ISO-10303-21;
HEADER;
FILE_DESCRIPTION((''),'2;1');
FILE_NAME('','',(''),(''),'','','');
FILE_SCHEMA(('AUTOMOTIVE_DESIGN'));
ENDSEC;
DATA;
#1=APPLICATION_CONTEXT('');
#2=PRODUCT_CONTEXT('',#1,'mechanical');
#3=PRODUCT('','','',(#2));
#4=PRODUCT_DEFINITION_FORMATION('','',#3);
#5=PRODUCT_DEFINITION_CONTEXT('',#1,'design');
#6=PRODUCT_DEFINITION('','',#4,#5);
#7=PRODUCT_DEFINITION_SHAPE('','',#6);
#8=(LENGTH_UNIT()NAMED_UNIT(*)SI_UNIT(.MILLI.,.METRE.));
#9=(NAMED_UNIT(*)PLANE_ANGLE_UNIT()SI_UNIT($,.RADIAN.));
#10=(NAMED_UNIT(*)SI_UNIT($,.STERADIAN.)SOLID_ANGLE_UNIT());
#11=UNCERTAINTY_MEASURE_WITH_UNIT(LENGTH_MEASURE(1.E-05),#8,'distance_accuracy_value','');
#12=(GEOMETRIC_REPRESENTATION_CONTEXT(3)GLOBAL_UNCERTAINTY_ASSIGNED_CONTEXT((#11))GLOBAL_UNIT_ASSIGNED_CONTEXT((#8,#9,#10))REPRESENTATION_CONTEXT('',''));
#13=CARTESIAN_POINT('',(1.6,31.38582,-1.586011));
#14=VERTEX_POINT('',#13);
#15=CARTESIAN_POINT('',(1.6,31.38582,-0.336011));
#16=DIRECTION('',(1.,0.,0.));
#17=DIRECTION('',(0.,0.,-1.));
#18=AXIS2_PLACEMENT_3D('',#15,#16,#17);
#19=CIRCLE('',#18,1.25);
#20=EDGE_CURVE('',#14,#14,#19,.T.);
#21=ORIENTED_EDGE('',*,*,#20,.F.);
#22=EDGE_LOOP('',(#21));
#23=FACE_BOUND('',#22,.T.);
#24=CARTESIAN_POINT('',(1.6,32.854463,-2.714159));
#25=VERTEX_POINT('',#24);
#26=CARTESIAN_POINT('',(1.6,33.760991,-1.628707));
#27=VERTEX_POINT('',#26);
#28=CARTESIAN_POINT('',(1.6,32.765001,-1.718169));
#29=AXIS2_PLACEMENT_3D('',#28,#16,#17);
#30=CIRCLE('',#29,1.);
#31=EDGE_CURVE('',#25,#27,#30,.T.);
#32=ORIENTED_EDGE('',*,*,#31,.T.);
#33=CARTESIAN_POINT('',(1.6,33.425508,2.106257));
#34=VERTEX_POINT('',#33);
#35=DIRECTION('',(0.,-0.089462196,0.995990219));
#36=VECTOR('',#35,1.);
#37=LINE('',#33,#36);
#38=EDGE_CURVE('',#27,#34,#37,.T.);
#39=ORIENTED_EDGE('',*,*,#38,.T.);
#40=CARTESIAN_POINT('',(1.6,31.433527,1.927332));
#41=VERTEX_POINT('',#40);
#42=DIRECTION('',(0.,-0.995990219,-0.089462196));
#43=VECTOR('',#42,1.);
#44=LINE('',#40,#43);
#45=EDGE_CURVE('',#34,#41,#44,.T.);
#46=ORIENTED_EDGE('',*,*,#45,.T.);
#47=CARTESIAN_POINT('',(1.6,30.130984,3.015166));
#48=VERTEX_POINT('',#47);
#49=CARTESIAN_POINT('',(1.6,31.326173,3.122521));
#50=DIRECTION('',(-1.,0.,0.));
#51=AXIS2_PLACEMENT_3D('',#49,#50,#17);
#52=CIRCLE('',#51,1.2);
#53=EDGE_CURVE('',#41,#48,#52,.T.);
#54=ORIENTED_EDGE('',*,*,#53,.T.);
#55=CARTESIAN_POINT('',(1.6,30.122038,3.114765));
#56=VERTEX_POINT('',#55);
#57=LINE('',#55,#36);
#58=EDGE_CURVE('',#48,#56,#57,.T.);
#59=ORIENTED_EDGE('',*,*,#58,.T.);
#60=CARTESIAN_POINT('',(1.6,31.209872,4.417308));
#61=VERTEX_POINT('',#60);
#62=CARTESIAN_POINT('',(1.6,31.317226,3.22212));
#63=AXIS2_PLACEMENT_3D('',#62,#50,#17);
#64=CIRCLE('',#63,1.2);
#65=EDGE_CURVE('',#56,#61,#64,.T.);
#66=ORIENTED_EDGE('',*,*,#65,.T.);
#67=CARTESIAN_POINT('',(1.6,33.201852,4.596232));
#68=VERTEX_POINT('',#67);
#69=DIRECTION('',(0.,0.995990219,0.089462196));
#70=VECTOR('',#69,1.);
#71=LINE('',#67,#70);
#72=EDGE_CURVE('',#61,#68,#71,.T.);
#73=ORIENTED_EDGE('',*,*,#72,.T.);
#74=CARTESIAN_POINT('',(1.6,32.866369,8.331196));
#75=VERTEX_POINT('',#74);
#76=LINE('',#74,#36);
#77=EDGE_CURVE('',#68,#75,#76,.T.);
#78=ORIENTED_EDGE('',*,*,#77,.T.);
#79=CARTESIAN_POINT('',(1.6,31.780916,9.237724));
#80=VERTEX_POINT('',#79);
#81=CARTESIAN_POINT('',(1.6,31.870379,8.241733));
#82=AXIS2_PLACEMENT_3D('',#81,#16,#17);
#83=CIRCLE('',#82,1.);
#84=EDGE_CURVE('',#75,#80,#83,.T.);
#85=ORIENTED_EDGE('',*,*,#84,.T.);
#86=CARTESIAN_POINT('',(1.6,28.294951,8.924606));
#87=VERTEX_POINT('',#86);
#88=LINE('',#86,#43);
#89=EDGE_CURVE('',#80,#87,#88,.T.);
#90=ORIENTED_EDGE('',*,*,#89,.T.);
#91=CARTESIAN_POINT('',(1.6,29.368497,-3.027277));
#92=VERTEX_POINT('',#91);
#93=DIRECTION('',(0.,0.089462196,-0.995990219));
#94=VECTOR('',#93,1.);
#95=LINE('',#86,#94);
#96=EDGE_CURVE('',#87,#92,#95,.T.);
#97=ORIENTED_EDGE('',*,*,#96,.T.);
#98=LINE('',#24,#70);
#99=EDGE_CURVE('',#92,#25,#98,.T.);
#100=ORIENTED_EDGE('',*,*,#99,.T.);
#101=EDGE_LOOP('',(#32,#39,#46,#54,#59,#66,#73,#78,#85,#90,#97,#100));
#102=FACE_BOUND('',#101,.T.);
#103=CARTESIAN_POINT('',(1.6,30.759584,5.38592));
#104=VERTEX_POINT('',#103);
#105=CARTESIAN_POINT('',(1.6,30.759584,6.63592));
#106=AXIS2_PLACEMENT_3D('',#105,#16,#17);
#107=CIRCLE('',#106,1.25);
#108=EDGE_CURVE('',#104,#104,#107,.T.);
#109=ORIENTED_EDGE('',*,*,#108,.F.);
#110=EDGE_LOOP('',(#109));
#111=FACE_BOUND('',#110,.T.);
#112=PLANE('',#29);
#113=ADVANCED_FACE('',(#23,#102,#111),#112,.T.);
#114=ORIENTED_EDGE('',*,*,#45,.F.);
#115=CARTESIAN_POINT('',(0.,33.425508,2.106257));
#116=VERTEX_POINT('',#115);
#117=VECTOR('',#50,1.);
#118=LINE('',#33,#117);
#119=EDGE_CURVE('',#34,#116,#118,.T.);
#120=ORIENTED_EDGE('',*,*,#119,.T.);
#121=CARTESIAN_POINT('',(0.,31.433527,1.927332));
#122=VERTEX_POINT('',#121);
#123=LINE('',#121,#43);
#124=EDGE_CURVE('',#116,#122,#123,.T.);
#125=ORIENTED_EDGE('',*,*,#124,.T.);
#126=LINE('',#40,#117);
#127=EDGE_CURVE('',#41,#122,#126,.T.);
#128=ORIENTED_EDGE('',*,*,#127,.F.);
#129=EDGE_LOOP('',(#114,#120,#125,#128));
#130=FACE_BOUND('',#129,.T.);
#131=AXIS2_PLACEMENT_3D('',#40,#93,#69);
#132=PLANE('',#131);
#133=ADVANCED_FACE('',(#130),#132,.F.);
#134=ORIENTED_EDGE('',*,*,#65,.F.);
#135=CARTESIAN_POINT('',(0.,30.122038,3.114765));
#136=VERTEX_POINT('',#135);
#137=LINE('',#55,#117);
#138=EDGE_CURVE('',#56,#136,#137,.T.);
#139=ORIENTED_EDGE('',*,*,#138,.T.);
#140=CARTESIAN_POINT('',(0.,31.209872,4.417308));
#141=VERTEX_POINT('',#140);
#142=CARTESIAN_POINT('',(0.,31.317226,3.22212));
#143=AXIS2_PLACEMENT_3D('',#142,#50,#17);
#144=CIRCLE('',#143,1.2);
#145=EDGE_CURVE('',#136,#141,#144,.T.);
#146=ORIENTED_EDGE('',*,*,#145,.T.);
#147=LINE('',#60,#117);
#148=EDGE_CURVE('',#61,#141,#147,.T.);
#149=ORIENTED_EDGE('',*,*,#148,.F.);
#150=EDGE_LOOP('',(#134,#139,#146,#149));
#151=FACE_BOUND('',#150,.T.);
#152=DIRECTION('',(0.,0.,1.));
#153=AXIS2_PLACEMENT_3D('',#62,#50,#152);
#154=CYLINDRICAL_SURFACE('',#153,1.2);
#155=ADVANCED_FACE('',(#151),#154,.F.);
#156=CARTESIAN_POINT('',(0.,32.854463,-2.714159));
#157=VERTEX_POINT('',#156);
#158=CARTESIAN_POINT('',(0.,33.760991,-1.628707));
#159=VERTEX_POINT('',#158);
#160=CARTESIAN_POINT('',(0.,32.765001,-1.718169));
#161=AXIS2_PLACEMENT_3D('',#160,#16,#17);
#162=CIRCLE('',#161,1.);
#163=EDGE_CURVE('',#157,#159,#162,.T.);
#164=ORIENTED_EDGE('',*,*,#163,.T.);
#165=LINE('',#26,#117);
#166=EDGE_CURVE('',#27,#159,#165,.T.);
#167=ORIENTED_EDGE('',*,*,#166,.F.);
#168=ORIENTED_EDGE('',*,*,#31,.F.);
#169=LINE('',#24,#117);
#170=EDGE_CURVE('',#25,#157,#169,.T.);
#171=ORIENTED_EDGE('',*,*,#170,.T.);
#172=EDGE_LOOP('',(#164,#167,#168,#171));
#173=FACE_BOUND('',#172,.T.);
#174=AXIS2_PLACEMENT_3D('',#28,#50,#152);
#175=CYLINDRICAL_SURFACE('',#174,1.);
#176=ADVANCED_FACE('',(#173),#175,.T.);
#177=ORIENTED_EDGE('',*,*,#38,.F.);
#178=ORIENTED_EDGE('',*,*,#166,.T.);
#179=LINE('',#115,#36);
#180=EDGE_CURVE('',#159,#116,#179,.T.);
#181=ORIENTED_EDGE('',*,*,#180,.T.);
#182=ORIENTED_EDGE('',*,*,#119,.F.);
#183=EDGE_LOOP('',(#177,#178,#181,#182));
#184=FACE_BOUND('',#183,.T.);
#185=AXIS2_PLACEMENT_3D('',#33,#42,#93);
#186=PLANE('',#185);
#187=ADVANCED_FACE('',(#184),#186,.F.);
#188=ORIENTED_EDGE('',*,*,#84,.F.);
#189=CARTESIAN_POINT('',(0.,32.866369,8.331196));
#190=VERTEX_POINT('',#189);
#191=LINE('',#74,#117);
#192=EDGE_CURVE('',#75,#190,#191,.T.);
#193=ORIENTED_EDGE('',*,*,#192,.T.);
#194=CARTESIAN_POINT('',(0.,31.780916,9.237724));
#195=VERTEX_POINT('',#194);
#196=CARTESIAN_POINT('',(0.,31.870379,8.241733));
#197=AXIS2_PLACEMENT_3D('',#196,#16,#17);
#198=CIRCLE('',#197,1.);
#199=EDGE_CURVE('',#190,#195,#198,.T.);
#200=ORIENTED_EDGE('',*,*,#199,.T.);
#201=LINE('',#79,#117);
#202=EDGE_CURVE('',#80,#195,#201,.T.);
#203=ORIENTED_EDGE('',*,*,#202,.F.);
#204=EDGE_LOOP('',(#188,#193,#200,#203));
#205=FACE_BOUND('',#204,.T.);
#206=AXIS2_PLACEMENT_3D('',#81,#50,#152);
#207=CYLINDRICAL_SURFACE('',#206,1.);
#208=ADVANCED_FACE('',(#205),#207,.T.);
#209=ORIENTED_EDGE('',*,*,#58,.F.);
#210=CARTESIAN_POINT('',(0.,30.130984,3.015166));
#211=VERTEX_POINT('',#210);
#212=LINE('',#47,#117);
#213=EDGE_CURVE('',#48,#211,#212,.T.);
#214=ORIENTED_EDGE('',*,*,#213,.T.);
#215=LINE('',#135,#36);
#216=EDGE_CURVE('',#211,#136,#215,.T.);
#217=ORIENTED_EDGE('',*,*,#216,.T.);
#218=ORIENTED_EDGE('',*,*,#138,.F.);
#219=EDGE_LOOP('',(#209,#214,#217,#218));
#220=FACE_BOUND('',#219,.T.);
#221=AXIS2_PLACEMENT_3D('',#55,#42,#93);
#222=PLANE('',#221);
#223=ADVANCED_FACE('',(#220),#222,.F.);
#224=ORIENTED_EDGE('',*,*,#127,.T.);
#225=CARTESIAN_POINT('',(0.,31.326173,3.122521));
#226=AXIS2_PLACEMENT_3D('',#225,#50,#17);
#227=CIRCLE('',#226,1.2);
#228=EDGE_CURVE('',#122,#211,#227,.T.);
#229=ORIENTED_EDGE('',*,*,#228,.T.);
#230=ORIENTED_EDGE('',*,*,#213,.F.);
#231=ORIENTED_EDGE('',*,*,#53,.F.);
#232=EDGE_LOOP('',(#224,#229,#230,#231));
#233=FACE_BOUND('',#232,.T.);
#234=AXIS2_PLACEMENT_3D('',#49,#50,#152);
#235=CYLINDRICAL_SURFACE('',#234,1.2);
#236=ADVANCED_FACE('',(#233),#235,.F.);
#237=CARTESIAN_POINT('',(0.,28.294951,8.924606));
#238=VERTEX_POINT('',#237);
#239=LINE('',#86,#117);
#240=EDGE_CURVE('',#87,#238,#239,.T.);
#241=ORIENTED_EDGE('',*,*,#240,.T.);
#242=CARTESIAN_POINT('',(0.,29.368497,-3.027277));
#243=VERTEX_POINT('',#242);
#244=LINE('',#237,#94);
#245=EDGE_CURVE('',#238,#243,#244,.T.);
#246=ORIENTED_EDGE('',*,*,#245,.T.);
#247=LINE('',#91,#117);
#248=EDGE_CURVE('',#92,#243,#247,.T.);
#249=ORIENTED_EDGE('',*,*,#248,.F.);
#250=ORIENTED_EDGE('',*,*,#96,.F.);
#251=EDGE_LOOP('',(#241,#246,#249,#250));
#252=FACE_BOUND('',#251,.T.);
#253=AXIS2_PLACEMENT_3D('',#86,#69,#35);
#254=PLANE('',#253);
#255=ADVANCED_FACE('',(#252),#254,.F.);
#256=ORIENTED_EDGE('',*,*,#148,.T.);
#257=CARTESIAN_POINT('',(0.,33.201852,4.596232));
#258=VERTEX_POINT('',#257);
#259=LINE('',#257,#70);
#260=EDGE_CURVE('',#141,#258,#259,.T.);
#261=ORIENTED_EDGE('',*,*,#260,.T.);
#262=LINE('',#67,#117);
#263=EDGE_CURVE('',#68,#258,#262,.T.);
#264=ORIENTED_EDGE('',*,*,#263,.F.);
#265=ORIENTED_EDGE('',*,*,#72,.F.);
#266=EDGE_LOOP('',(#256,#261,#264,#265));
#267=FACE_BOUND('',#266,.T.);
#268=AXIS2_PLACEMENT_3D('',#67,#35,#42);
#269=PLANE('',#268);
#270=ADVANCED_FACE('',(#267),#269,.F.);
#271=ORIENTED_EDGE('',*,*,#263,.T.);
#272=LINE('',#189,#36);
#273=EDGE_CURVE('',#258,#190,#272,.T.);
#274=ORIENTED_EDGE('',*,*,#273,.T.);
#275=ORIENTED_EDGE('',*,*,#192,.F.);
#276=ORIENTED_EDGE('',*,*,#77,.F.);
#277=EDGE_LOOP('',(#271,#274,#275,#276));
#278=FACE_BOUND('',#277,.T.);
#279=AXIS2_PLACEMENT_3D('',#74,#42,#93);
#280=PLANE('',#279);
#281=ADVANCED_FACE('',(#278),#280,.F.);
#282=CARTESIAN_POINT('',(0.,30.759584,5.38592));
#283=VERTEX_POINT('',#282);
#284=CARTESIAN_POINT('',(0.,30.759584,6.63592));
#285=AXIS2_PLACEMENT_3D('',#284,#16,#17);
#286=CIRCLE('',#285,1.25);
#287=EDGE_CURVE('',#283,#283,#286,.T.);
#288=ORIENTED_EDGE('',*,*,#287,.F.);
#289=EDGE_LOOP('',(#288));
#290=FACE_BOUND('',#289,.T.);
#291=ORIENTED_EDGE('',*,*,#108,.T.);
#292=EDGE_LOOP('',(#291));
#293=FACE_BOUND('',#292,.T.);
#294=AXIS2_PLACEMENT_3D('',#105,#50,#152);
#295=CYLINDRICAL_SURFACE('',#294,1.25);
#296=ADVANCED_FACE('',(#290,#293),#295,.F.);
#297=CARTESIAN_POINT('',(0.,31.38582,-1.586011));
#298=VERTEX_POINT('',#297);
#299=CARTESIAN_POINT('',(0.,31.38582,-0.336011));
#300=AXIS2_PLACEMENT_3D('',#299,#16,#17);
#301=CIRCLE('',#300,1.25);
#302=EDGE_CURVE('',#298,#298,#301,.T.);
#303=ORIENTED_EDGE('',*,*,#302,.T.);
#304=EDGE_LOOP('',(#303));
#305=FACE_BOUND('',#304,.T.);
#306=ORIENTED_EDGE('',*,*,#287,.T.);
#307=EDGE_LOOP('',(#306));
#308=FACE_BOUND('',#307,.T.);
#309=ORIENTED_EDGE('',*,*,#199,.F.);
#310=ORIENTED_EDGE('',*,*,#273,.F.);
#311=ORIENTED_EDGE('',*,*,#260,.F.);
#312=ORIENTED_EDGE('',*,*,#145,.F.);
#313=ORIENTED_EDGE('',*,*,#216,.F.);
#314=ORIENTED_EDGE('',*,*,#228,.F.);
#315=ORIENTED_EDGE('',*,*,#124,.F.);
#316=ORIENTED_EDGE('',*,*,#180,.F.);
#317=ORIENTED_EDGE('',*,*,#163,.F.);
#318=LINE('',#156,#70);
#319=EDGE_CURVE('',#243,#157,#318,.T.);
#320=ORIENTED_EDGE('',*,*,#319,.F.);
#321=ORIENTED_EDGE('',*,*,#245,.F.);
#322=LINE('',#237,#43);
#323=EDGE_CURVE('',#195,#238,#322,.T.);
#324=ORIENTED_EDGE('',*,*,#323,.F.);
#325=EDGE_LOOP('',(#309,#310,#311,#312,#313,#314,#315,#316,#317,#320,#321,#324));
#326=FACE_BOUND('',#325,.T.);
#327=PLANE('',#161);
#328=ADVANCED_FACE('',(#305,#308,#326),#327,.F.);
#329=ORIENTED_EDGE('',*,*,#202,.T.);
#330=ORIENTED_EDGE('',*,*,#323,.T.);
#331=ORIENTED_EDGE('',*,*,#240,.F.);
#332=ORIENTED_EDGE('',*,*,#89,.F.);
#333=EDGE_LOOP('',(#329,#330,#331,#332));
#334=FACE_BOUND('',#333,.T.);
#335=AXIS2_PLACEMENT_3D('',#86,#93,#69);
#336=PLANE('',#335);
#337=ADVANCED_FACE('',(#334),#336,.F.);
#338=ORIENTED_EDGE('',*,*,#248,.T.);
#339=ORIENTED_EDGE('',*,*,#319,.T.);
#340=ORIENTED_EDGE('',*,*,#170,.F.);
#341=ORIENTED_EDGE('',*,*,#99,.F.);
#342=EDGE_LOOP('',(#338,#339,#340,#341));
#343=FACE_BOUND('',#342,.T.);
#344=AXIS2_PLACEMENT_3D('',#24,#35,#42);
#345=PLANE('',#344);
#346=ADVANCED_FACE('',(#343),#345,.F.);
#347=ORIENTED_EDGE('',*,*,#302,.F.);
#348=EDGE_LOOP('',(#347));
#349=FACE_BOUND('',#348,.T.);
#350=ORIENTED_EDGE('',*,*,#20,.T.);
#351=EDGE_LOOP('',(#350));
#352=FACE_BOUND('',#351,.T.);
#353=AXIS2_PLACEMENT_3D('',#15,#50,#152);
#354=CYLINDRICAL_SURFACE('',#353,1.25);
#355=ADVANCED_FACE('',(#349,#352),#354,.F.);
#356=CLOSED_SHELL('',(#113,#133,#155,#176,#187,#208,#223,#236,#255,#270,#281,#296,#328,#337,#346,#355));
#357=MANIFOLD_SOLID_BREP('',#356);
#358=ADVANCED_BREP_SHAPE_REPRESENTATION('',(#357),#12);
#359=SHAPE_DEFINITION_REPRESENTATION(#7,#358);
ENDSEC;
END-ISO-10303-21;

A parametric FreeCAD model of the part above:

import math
import FreeCAD as App
import Part
import Sketcher
Q = App.Units.Quantity

doc = App.newDocument("Part")
body = doc.addObject("PartDesign::Body", "Body")

sketch1 = doc.addObject("Sketcher::SketchObject", "Sketch")
body.addObject(sketch1)
sketch1.AttachmentSupport = (doc.YZ_Plane, [""])
sketch1.MapMode = "FlatFace"
sketch1.addGeometry([
    Part.LineSegment(App.Vector(29.368497, -3.027277, 0), App.Vector(32.854463, -2.714159, 0)),
    Part.ArcOfCircle(Part.Circle(App.Vector(32.765001, -1.718169, 0), App.Vector(0, 0, 1), 1), math.radians(-84.867332), math.radians(5.132668)),
    Part.LineSegment(App.Vector(33.760991, -1.628707, 0), App.Vector(33.425508, 2.106257, 0)),
    Part.LineSegment(App.Vector(33.425508, 2.106257, 0), App.Vector(31.433527, 1.927332, 0)),
    Part.ArcOfCircle(Part.Circle(App.Vector(31.326173, 3.122521, 0), App.Vector(0, 0, 1), 1.2), math.radians(-174.867332), math.radians(-84.867332)),
    Part.LineSegment(App.Vector(30.130984, 3.015166, 0), App.Vector(30.122038, 3.114765, 0)),
    Part.ArcOfCircle(Part.Circle(App.Vector(31.317226, 3.22212, 0), App.Vector(0, 0, 1), 1.2), math.radians(95.132668), math.radians(185.132668)),
    Part.LineSegment(App.Vector(31.209872, 4.417308, 0), App.Vector(33.201852, 4.596232, 0)),
    Part.LineSegment(App.Vector(33.201852, 4.596232, 0), App.Vector(32.866369, 8.331196, 0)),
    Part.ArcOfCircle(Part.Circle(App.Vector(31.870379, 8.241733, 0), App.Vector(0, 0, 1), 1), math.radians(5.132668), math.radians(95.132668)),
    Part.LineSegment(App.Vector(31.780916, 9.237724, 0), App.Vector(28.294951, 8.924606, 0)),
    Part.LineSegment(App.Vector(28.294951, 8.924606, 0), App.Vector(29.368497, -3.027277, 0)),
    Part.Circle(App.Vector(30.759584, 6.63592, 0), App.Vector(0, 0, 1), 1.25),
    Part.Circle(App.Vector(31.38582, -0.336011, 0), App.Vector(0, 0, 1), 1.25),
], False)
sketch1.addConstraint([
    Sketcher.Constraint("Tangent", 0, 2, 1, 1),
    Sketcher.Constraint("Tangent", 1, 2, 2, 1),
    Sketcher.Constraint("Coincident", 2, 2, 3, 1),
    Sketcher.Constraint("Tangent", 3, 2, 4, 2),
    Sketcher.Constraint("Tangent", 4, 1, 5, 1),
    Sketcher.Constraint("Tangent", 5, 2, 6, 2),
    Sketcher.Constraint("Tangent", 6, 1, 7, 1),
    Sketcher.Constraint("Coincident", 7, 2, 8, 1),
    Sketcher.Constraint("Tangent", 8, 2, 9, 1),
    Sketcher.Constraint("Tangent", 9, 2, 10, 1),
    Sketcher.Constraint("Coincident", 10, 2, 11, 1),
    Sketcher.Constraint("Coincident", 11, 2, 0, 1),
    Sketcher.Constraint("Equal", 4, 6),
    Sketcher.Constraint("Equal", 1, 9),
    Sketcher.Constraint("Equal", 12, 13),
    Sketcher.Constraint("Perpendicular", 0, 2),
    Sketcher.Constraint("Perpendicular", 2, 3),
    Sketcher.Constraint("Perpendicular", 3, 5),
    Sketcher.Constraint("Perpendicular", 5, 7),
    Sketcher.Constraint("Perpendicular", 7, 8),
    Sketcher.Constraint("Perpendicular", 8, 10),
    Sketcher.Constraint("Perpendicular", 10, 11),
    Sketcher.Constraint("Equal", 3, 7),
    Sketcher.Constraint("Equal", 2, 8),
    Sketcher.Constraint("Radius", 1, Q("1 mm")),
    Sketcher.Constraint("Diameter", 12, Q("2.5 mm")),
    Sketcher.Constraint("Radius", 4, Q("1.2 mm")),
    Sketcher.Constraint("Distance", 3, Q("2 mm")),
    Sketcher.Constraint("Distance", 11, Q("12 mm")),
    Sketcher.Constraint("Distance", 0, Q("3.5 mm")),
    Sketcher.Constraint("Distance", 5, Q("0.1 mm")),
    Sketcher.Constraint("DistanceX", -1, 1, 1, 3, Q("32.765001 mm")),
    Sketcher.Constraint("DistanceY", 6, 3, 12, 3, Q("3.413801 mm")),
    Sketcher.Constraint("DistanceX", 6, 3, 3, 2, Q("0.116301 mm")),
    Sketcher.Constraint("DistanceY", 1, 3, -1, 1, Q("1.718169 mm")),
    Sketcher.Constraint("DistanceX", -1, 1, 13, 3, Q("31.38582 mm")),
    Sketcher.Constraint("DistanceY", 13, 3, -1, 1, Q("0.336011 mm")),
    Sketcher.Constraint("DistanceX", 12, 3, 4, 3, Q("0.566588 mm")),
])
pad1 = doc.addObject("PartDesign::Pad", "Pad")
body.addObject(pad1)
pad1.Profile = sketch1
pad1.Length = 1.6

doc.recompute()
